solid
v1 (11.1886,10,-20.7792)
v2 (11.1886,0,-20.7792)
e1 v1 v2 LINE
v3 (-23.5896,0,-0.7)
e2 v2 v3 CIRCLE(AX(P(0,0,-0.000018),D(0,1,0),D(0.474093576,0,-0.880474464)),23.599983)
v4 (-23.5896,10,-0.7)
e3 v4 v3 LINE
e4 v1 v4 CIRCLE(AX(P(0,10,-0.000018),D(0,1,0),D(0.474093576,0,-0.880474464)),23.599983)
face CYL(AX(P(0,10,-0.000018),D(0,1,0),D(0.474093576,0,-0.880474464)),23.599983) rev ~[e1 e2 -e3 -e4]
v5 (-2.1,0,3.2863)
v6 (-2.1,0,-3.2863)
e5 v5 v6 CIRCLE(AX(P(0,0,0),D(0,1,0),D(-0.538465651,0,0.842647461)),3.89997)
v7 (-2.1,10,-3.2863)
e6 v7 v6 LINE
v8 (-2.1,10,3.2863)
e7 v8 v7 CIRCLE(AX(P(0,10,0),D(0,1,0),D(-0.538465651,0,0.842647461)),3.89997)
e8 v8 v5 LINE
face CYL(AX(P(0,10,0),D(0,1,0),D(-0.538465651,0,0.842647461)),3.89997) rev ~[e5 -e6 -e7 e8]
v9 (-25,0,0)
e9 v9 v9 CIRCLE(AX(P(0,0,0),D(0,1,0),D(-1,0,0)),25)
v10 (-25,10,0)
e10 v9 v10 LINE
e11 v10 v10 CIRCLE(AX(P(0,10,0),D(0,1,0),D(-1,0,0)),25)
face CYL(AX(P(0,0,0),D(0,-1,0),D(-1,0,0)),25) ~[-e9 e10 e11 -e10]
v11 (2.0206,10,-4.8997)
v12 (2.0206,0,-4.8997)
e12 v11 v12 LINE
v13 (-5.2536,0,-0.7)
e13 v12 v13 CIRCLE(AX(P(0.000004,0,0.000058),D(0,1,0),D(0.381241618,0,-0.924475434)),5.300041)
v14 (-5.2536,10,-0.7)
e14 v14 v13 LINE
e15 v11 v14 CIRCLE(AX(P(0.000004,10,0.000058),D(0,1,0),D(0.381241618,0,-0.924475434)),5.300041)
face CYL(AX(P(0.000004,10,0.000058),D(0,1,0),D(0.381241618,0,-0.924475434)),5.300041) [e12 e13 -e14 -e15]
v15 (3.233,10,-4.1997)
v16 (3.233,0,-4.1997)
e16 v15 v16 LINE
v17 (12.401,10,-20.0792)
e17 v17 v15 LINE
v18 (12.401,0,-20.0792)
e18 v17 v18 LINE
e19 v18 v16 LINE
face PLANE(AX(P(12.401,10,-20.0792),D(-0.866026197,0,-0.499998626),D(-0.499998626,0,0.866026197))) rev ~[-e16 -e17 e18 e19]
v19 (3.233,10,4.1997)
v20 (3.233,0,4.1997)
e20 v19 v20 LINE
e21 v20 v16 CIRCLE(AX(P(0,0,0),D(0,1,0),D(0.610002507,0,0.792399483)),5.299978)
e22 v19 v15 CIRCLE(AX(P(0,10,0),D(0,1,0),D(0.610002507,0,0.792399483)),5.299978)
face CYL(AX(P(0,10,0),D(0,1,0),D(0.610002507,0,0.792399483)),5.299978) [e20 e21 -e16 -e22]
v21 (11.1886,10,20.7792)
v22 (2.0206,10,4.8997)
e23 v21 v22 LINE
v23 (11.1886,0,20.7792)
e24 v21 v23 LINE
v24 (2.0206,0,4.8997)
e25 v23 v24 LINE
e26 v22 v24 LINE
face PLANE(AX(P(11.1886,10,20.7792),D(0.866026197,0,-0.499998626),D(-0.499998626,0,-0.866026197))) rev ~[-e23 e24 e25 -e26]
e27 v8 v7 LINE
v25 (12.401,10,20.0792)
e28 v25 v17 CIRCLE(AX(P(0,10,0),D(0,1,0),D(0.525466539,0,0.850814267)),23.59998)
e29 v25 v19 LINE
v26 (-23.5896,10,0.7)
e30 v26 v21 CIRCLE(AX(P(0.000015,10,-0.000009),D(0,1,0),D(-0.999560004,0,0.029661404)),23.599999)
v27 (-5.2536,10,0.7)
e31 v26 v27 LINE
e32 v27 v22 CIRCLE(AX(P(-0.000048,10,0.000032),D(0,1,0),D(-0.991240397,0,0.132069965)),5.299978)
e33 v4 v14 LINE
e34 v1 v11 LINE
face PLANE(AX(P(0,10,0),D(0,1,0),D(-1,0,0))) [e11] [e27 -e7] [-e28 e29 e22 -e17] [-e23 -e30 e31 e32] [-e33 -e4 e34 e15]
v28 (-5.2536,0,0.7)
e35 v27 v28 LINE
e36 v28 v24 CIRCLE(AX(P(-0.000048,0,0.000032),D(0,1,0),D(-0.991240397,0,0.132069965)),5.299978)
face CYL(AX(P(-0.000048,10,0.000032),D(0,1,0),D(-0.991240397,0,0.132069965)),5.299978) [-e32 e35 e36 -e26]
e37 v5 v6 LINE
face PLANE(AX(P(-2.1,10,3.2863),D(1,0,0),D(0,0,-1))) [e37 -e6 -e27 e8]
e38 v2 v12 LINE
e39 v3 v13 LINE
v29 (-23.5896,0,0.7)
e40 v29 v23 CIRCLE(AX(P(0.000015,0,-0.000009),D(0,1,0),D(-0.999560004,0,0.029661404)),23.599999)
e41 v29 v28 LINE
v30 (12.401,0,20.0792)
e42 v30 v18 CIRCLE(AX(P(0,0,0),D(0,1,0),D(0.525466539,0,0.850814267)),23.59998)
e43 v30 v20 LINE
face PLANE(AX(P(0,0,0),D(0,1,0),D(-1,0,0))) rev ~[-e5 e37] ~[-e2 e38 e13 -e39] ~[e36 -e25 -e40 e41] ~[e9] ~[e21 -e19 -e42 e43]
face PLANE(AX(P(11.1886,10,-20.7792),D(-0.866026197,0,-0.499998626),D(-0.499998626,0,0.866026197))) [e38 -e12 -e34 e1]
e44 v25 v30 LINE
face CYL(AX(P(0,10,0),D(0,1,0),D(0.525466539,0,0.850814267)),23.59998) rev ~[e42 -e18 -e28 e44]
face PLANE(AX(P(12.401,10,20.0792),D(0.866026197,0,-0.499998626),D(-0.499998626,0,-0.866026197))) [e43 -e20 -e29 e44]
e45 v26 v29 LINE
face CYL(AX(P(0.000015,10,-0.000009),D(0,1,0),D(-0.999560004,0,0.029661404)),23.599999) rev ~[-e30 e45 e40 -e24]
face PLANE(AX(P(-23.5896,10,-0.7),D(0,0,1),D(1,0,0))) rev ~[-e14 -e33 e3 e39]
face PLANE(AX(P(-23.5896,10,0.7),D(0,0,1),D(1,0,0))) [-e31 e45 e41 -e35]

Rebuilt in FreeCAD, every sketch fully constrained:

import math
import FreeCAD as App
import Part
import Sketcher
Q = App.Units.Quantity

doc = App.newDocument("Part")
body = doc.addObject("PartDesign::Body", "Body")

sketch1 = body.newObject("Sketcher::SketchObject", "Sketch")
sketch1.AttachmentSupport = (doc.getObject("XZ_Plane"), [""])
sketch1.MapMode = "FlatFace"
sketch1.addGeometry(Part.Circle(App.Vector(0, 0, 0), App.Vector(0, 0, 1), 25), False)
sketch1.addConstraint([
    Sketcher.Constraint("Coincident", 0, 3, -1, 1),
    Sketcher.Constraint("Diameter", 0, Q("50 mm")),
])
pad1 = body.newObject("PartDesign::Pad", "Pad")
pad1.Profile = sketch1
pad1.Length = 10
pad1.Reversed = True

sketch2 = body.newObject("Sketcher::SketchObject", "Sketch001")
sketch2.AttachmentSupport = (doc.getObject("XZ_Plane"), [""])
sketch2.MapMode = "FlatFace"
sketch2.AttachmentOffset = App.Placement(App.Vector(0, 0, -10), App.Rotation())
sketch2.addGeometry([
    Part.LineSegment(App.Vector(-2.1, -3.2863, 0), App.Vector(-2.1, 3.2863, 0)),
    Part.ArcOfCircle(Part.Circle(App.Vector(0, 0, 0), App.Vector(0, 0, 1), 3.89997), math.radians(-122.57925), math.radians(122.57925)),
], False)
sketch2.addConstraint([
    Sketcher.Constraint("Coincident", 0, 1, 1, 1),
    Sketcher.Constraint("Coincident", 1, 2, 0, 2),
    Sketcher.Constraint("Vertical", 0),
    Sketcher.Constraint("Coincident", 1, 3, -1, 1),
    Sketcher.Constraint("Radius", 1, Q("3.9 mm")),
    Sketcher.Constraint("DistanceX", 0, 1, -1, 1, Q("2.1 mm")),
])
pocket1 = body.newObject("PartDesign::Pocket", "Pocket")
pocket1.Profile = sketch2
pocket1.Length = 10
pocket1.Reversed = True

sketch3 = body.newObject("Sketcher::SketchObject", "Sketch002")
sketch3.AttachmentSupport = (doc.getObject("XZ_Plane"), [""])
sketch3.MapMode = "FlatFace"
sketch3.AttachmentOffset = App.Placement(App.Vector(0, 0, -10), App.Rotation())
sketch3.addGeometry([
    Part.LineSegment(App.Vector(-5.2536, 0.7, 0), App.Vector(-23.5896, 0.7, 0)),
    Part.ArcOfCircle(Part.Circle(App.Vector(0, 0, 0), App.Vector(0, 0, 1), 23.599998), math.radians(61.699672), math.radians(178.300298)),
    Part.LineSegment(App.Vector(11.1886, 20.7792, 0), App.Vector(2.0206, 4.8997, 0)),
    Part.ArcOfCircle(Part.Circle(App.Vector(0, 0, 0), App.Vector(0, 0, 1), 5.299978), math.radians(67.589112), math.radians(172.4105)),
    Part.ArcOfCircle(Part.Circle(App.Vector(0, 0, 0), App.Vector(0, 0, 1), 23.599984), math.radians(-178.300298), math.radians(-61.699672)),
    Part.LineSegment(App.Vector(-23.5896, -0.7, 0), App.Vector(-5.2536, -0.7, 0)),
    Part.ArcOfCircle(Part.Circle(App.Vector(0, 0, 0), App.Vector(0, 0, 1), 5.30003), math.radians(-172.4105), math.radians(-67.589112)),
    Part.LineSegment(App.Vector(2.0206, -4.8997, 0), App.Vector(11.1886, -20.7792, 0)),
    Part.ArcOfCircle(Part.Circle(App.Vector(0, 0, 0), App.Vector(0, 0, 1), 23.59998), math.radians(-58.300344), math.radians(58.300344)),
    Part.LineSegment(App.Vector(12.401, -20.0792, 0), App.Vector(3.233, -4.1997, 0)),
    Part.ArcOfCircle(Part.Circle(App.Vector(0, 0, 0), App.Vector(0, 0, 1), 5.299978), math.radians(-52.410316), math.radians(52.410316)),
    Part.LineSegment(App.Vector(3.233, 4.1997, 0), App.Vector(12.401, 20.0792, 0)),
], False)
sketch3.addConstraint([
    Sketcher.Constraint("Coincident", 0, 2, 1, 2),
    Sketcher.Constraint("Coincident", 1, 1, 2, 1),
    Sketcher.Constraint("Coincident", 2, 2, 3, 1),
    Sketcher.Constraint("Coincident", 3, 2, 0, 1),
    Sketcher.Constraint("Coincident", 4, 1, 5, 1),
    Sketcher.Constraint("Coincident", 5, 2, 6, 1),
    Sketcher.Constraint("Coincident", 6, 2, 7, 1),
    Sketcher.Constraint("Coincident", 7, 2, 4, 2),
    Sketcher.Constraint("Coincident", 8, 1, 9, 1),
    Sketcher.Constraint("Coincident", 9, 2, 10, 1),
    Sketcher.Constraint("Coincident", 10, 2, 11, 1),
    Sketcher.Constraint("Coincident", 11, 2, 8, 2),
    Sketcher.Constraint("Horizontal", 0),
    Sketcher.Constraint("Horizontal", 5),
    Sketcher.Constraint("Coincident", 1, 3, -1, 1),
    Sketcher.Constraint("Coincident", 3, 3, -1, 1),
    Sketcher.Constraint("Coincident", 4, 3, -1, 1),
    Sketcher.Constraint("Coincident", 6, 3, -1, 1),
    Sketcher.Constraint("Coincident", 8, 3, -1, 1),
    Sketcher.Constraint("Coincident", 10, 3, -1, 1),
    Sketcher.Constraint("Equal", 1, 4),
    Sketcher.Constraint("Equal", 3, 6),
    Sketcher.Constraint("Equal", 4, 8),
    Sketcher.Constraint("Equal", 6, 10),
    Sketcher.Constraint("Parallel", 7, 9),
    Sketcher.Constraint("Parallel", 2, 11),
    Sketcher.Constraint("Vertical", 0, 2, 4, 1),
    Sketcher.Constraint("Vertical", 2, 2, 6, 2),
    Sketcher.Constraint("Vertical", 1, 1, 7, 2),
    Sketcher.Constraint("Vertical", 9, 2, 10, 2),
    Sketcher.Constraint("Equal", 7, 9),
    Sketcher.Constraint("Radius", 1, Q("23.6 mm")),
    Sketcher.Constraint("Radius", 3, Q("5.3 mm")),
    Sketcher.Constraint("DistanceY", 4, 1, 0, 2, Q("1.4 mm")),
    Sketcher.Constraint("Angle", 2, Q("-120 deg")),
    Sketcher.Constraint("DistanceY", 7, 2, 8, 1, Q("0.7 mm")),
])
pocket2 = body.newObject("PartDesign::Pocket", "Pocket001")
pocket2.Profile = sketch3
pocket2.Type = "ThroughAll"
pocket2.Reversed = True

doc.recompute()
